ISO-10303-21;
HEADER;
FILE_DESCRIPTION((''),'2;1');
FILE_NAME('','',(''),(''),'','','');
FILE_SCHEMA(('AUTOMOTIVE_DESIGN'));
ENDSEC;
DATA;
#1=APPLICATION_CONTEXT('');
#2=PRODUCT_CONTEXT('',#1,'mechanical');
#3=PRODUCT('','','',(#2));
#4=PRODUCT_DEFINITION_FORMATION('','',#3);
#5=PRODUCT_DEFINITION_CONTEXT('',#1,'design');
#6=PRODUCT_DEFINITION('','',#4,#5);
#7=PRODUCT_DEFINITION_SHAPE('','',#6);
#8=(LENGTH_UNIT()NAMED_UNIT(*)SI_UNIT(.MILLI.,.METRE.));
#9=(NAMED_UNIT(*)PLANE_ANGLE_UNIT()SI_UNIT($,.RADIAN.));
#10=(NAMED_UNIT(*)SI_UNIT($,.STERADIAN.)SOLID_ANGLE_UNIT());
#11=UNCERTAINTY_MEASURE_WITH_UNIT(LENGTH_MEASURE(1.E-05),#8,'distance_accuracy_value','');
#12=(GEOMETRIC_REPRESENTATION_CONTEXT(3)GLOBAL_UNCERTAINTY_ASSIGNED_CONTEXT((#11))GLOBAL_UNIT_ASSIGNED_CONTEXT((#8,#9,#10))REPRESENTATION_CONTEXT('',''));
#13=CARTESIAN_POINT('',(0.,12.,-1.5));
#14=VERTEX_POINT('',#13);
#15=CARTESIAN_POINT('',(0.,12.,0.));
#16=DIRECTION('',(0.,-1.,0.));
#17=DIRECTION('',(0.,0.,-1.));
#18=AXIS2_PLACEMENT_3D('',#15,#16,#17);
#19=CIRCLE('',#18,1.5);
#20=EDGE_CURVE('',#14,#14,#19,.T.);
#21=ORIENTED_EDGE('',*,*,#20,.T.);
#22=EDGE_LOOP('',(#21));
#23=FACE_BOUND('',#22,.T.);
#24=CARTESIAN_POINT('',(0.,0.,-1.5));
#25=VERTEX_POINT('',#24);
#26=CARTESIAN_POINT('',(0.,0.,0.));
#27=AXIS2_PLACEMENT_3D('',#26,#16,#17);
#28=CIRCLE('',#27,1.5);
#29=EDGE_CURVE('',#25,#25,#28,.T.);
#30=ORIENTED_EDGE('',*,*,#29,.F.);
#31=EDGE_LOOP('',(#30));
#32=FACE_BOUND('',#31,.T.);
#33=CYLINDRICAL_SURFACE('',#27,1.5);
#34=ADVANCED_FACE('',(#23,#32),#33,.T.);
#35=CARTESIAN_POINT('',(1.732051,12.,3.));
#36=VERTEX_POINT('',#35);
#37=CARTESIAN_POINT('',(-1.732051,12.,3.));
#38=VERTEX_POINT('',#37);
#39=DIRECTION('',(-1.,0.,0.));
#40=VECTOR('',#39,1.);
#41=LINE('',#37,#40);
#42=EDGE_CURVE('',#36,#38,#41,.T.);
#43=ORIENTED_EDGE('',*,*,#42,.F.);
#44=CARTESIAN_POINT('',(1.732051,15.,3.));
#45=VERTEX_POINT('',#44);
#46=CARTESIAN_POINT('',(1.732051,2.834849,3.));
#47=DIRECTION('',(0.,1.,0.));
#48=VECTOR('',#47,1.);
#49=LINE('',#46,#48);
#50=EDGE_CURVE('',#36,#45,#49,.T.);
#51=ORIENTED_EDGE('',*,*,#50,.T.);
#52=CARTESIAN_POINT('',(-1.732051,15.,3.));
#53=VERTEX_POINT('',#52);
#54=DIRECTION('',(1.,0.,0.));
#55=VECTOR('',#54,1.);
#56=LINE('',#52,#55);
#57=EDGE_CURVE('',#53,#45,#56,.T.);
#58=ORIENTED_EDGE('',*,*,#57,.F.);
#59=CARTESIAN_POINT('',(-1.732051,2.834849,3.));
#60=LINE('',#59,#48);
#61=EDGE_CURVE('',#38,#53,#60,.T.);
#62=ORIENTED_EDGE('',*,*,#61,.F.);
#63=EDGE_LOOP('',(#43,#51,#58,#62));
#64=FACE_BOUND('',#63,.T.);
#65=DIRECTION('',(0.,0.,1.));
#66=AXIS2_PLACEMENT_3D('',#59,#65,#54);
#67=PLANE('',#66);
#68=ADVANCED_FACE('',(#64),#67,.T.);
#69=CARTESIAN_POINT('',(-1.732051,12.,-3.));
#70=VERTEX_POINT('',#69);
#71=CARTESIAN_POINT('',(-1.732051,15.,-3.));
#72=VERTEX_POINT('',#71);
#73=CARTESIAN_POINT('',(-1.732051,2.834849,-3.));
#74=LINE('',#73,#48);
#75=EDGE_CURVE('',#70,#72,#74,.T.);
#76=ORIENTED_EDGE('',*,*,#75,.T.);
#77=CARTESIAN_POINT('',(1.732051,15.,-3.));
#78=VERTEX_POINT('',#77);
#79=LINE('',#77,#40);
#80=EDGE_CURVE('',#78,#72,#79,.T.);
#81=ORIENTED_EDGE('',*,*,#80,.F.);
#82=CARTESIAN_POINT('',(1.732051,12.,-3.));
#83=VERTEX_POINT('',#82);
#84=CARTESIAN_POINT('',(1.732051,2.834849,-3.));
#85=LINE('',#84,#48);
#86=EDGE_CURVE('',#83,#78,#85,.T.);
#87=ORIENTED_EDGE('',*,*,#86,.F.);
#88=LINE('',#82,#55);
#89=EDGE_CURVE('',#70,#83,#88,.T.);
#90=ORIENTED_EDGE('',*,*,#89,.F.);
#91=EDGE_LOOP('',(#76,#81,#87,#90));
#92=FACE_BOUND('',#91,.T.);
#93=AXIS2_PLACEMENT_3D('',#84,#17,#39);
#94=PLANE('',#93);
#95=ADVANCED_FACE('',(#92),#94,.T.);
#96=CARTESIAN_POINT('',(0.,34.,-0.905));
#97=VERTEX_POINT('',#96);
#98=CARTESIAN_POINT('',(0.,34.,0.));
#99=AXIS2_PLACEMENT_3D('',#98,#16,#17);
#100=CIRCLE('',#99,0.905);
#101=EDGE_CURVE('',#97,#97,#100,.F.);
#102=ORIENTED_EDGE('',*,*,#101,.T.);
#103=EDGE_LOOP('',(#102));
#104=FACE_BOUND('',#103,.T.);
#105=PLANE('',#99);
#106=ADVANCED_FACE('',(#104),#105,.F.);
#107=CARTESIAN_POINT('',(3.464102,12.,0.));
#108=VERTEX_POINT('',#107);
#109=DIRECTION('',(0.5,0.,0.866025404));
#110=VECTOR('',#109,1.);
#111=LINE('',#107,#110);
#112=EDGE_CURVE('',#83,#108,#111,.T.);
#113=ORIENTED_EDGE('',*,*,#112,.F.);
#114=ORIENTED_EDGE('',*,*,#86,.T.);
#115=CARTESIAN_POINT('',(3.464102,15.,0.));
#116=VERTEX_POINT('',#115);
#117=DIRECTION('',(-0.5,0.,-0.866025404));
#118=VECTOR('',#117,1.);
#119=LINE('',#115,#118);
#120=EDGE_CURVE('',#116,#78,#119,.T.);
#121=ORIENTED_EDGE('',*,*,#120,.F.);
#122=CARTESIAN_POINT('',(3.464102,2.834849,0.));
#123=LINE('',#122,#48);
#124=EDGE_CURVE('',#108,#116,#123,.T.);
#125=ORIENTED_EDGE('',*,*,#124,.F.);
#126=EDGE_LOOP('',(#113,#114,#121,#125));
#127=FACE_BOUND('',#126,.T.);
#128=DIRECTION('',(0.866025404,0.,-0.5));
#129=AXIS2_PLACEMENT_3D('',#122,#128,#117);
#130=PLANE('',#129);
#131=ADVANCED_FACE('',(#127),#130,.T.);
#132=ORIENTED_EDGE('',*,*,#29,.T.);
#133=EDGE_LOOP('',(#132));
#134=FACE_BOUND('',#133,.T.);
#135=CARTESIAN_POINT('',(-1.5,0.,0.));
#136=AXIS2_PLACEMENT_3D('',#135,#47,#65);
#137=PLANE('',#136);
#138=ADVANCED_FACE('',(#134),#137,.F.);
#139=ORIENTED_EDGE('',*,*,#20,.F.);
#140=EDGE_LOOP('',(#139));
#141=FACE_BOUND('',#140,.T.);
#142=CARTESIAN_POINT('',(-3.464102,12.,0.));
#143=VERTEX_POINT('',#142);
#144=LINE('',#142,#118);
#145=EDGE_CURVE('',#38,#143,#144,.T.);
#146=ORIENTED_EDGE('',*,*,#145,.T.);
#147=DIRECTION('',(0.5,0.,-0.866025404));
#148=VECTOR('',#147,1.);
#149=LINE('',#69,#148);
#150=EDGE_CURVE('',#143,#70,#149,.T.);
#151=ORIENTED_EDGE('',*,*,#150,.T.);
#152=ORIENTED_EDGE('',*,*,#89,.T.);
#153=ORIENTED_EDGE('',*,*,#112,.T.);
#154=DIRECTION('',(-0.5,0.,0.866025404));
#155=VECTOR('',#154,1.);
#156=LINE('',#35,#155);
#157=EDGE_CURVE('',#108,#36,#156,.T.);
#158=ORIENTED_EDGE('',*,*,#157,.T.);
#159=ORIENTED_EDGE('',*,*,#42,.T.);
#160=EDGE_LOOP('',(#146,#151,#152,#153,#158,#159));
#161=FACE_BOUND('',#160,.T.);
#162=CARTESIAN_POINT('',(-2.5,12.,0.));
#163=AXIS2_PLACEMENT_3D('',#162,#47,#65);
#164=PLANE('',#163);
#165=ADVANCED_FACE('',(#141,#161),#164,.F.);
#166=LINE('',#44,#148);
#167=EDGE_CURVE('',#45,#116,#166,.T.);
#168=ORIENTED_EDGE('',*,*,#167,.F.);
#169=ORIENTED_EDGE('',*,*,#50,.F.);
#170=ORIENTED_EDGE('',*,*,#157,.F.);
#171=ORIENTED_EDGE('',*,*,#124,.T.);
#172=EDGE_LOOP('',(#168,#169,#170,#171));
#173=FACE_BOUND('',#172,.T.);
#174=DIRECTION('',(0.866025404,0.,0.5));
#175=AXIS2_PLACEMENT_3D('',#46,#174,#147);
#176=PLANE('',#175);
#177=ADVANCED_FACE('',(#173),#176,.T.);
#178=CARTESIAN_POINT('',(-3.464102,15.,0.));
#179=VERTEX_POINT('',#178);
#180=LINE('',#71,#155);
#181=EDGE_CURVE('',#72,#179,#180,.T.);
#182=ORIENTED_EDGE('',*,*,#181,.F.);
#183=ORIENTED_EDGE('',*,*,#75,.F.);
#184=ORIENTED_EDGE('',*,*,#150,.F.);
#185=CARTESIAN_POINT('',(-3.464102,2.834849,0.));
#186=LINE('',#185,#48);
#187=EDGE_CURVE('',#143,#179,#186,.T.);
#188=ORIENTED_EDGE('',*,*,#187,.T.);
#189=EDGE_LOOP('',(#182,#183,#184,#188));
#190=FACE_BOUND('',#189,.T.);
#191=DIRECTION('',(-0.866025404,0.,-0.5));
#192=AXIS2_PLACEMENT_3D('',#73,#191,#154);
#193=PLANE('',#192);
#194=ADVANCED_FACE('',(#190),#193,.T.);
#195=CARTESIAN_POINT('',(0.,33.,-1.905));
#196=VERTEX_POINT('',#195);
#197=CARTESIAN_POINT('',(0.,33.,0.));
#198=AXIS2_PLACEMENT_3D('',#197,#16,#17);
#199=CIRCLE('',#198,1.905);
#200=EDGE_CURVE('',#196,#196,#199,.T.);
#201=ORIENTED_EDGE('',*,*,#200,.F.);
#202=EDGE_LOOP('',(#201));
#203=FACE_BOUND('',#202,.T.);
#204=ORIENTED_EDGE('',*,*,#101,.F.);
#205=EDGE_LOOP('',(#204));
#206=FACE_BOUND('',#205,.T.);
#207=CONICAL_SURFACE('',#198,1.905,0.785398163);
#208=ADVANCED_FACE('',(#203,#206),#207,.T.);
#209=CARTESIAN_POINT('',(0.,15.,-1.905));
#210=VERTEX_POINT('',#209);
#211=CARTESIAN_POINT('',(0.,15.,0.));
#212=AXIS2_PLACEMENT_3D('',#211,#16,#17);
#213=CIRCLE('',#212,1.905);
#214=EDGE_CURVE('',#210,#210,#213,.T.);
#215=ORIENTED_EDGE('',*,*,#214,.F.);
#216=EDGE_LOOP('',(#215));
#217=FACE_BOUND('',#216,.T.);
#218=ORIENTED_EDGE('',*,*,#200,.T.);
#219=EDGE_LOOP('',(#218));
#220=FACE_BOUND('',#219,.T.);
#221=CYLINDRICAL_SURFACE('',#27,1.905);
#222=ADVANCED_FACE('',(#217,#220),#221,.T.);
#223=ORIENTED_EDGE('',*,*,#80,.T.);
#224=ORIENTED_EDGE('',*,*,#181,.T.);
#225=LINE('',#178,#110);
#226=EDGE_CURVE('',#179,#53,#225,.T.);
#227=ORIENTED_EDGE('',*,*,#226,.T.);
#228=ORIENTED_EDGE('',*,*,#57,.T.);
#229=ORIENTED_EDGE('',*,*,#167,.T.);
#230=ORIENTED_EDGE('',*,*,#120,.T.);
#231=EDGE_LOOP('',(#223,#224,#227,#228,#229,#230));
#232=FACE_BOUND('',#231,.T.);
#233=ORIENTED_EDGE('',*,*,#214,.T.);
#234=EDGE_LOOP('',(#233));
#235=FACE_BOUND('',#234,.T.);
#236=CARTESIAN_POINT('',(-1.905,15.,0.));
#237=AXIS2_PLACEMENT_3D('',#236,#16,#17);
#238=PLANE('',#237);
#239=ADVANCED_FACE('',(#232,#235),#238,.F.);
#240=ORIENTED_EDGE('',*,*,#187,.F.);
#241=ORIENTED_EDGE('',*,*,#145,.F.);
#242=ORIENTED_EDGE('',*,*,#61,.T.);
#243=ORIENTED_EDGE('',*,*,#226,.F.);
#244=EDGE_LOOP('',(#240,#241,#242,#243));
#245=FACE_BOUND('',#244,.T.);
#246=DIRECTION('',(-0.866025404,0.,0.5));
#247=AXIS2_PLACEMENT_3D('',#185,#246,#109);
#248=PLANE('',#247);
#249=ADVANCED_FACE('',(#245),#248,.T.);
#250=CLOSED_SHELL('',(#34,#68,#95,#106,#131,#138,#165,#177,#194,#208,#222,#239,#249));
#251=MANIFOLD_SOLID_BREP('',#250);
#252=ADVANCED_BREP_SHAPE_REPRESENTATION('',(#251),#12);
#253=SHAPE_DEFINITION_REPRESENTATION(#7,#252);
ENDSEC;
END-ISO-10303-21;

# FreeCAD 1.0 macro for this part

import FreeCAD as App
import Part
import Sketcher
from FreeCAD import Vector
Q = App.Units.Quantity


def edges_at(feature, points):
    """Names of the edges that pass closest to the given points."""
    edges = feature.Shape.Edges
    near = lambda p: min(range(len(edges)), key=lambda i: edges[i].distToShape(Part.Vertex(*p))[0])
    return sorted({f"Edge{near(p) + 1}" for p in points})


def add_polygon(sketch, points):
    """Adds a closed chain of lines whose ends are joined by coincident constraints."""
    first, n = sketch.GeometryCount, len(points)
    for a, b in zip(points, points[1:] + points[:1]):
        sketch.addGeometry(Part.LineSegment(App.Vector(*a, 0), App.Vector(*b, 0)), False)
    for i in range(n):
        sketch.addConstraint(Sketcher.Constraint("Coincident", first + i, 2, first + (i + 1) % n, 1))

doc = App.newDocument("Part")
body = doc.addObject("PartDesign::Body", "Body")

# Sketch on XY plane
sketch1 = doc.addObject("Sketcher::SketchObject", "Sketch")
body.addObject(sketch1)
sketch1.AttachmentSupport = (doc.XY_Plane, [""])
sketch1.MapMode = "FlatFace"
add_polygon(sketch1, [(0, 34), (-1.9, 34), (-1.9, 15), (-2.5, 15), (-2.5, 12), (-1.5, 12), (-1.5, 0), (0, 0)])  # lines 0-7
sketch1.addConstraint([
    Sketcher.Constraint("Horizontal", 0),
    Sketcher.Constraint("Vertical", 1),
    Sketcher.Constraint("Horizontal", 2),
    Sketcher.Constraint("Vertical", 3),
    Sketcher.Constraint("Horizontal", 4),
    Sketcher.Constraint("Vertical", 5),
    Sketcher.Constraint("Horizontal", 6),
    Sketcher.Constraint("Vertical", 7),
    Sketcher.Constraint("Coincident", 6, 2, -1, 1),
    Sketcher.Constraint("DistanceX", 4, 1, 4, 2, Q("1 mm")),
    Sketcher.Constraint("DistanceY", 1, 2, 1, 1, Q("19 mm")),
    Sketcher.Constraint("DistanceY", 3, 2, 3, 1, Q("3 mm")),
    Sketcher.Constraint("DistanceY", 5, 2, 5, 1, Q("12 mm")),
    Sketcher.Constraint("DistanceX", 6, 1, 6, 2, Q("1.5 mm")),
    Sketcher.Constraint("DistanceX", 0, 2, 0, 1, Q("1.905 mm")),
])
revolution = doc.addObject("PartDesign::Revolution", "Revolution")
body.addObject(revolution)
revolution.Profile = sketch1
revolution.ReferenceAxis = (sketch1, ["V_Axis"])
revolution.Angle = 360

# Sketch on XZ plane
sketch2 = doc.addObject("Sketcher::SketchObject", "Sketch001")
body.addObject(sketch2)
sketch2.AttachmentSupport = (doc.XZ_Plane, [""])
sketch2.MapMode = "FlatFace"
sketch2.AttachmentOffset = App.Placement(Vector(0, 0, -15), App.Rotation())
add_polygon(sketch2, [(-3.5, 0), (-1.7, 3), (1.7, 3), (3.5, 0), (1.7, -3), (-1.7, -3)])  # lines 0-5
sketch2.addConstraint([
    Sketcher.Constraint("Horizontal", 1),
    Sketcher.Constraint("Horizontal", 4),
    Sketcher.Constraint("Symmetric", 0, 2, 3, 2, -1, 1),
    Sketcher.Constraint("Symmetric", 2, 2, 5, 2, -1, 1),
    Sketcher.Constraint("PointOnObject", 2, 2, -1),
    Sketcher.Constraint("Parallel", 2, 5),
    Sketcher.Constraint("Vertical", 1, 2, 3, 2),
    Sketcher.Constraint("Angle", 0, Q("60 deg")),
    Sketcher.Constraint("DistanceY", -1, 1, 0, 2, Q("3 mm")),
    Sketcher.Constraint("DistanceX", 1, 1, 1, 2, Q("3.464102 mm")),
])
pad1 = doc.addObject("PartDesign::Pad", "Pad")
body.addObject(pad1)
pad1.Profile = sketch2
pad1.Length = 3
doc.recompute()

chamfer = doc.addObject("PartDesign::Chamfer", "Chamfer")
body.addObject(chamfer)
chamfer.Base = (pad1, edges_at(pad1, [(0, 34, 1.905)]))
chamfer.Size = 1

doc.recompute()
